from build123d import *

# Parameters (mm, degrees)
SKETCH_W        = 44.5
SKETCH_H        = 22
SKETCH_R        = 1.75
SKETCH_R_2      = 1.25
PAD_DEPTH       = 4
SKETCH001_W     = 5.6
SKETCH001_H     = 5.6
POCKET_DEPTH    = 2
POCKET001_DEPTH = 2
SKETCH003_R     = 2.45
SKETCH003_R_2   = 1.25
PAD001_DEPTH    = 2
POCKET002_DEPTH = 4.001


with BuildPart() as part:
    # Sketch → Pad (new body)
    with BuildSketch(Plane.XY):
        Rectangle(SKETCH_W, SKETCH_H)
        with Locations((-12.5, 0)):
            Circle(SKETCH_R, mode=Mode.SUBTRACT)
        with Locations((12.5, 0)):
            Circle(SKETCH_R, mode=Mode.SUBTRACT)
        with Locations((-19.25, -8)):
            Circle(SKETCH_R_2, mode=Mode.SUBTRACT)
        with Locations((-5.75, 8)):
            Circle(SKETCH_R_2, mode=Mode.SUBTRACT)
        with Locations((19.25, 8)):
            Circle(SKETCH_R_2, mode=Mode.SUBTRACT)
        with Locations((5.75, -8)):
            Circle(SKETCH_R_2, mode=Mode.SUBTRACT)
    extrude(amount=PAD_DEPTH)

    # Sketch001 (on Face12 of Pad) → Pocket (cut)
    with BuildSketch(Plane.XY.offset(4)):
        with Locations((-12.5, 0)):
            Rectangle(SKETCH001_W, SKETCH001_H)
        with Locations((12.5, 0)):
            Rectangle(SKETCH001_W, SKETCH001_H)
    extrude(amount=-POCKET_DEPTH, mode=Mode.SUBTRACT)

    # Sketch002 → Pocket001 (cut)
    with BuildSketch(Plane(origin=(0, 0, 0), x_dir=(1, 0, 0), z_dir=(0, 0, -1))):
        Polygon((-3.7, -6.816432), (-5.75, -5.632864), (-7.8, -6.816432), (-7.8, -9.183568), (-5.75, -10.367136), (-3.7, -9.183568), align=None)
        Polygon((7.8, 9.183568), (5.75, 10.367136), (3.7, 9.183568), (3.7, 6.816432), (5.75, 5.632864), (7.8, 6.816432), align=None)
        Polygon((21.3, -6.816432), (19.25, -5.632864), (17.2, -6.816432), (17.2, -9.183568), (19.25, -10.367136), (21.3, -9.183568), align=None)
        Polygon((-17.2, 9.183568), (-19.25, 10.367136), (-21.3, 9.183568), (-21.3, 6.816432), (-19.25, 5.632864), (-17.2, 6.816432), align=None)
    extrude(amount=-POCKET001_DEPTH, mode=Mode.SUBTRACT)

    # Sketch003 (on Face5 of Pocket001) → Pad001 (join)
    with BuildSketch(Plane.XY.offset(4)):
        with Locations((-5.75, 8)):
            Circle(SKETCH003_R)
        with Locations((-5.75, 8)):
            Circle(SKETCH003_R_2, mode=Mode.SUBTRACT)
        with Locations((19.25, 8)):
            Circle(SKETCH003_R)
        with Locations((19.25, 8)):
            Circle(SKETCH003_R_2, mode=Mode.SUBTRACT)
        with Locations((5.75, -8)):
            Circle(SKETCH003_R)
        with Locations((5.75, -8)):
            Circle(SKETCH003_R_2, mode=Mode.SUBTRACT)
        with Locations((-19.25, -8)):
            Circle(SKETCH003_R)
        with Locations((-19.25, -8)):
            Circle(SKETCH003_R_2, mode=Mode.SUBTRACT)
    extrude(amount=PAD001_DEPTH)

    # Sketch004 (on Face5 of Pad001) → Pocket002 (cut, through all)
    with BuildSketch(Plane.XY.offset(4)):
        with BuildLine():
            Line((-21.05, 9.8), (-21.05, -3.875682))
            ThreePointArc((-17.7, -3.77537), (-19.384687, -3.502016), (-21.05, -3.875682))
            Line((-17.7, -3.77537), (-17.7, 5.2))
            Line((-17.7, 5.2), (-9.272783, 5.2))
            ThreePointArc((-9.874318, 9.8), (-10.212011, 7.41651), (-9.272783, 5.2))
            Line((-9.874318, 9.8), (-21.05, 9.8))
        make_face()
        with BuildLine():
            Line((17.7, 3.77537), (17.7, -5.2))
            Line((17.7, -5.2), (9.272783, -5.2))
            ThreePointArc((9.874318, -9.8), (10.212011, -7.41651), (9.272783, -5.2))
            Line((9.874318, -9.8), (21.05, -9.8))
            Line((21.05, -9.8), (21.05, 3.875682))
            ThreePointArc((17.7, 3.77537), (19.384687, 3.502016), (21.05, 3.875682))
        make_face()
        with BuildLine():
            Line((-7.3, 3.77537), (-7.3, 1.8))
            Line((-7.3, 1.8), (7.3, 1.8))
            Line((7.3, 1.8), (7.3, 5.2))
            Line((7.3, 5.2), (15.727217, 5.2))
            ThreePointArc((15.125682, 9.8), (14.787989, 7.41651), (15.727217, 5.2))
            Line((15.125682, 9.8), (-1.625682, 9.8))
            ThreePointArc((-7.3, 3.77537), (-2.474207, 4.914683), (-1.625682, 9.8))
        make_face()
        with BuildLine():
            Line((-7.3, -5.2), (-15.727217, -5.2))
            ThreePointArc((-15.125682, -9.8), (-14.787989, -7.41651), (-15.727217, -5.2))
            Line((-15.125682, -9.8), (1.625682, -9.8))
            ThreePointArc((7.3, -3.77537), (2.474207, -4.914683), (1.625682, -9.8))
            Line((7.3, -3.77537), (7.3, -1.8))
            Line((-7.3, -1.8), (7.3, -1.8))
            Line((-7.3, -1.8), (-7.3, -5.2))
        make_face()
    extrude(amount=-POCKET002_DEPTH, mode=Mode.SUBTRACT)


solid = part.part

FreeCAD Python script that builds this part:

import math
import FreeCAD as App
import Part
import Sketcher

V = App.Vector
Q = App.Units.Quantity

doc = App.newDocument("Part")
body = doc.addObject("PartDesign::Body", "Body")

sketch1 = body.newObject("Sketcher::SketchObject", "Sketch")
sketch1.AttachmentSupport = (doc.getObject("XY_Plane"), [""])
sketch1.MapMode = "FlatFace"
sketch1.addGeometry(Part.LineSegment(V(-22.25, 11, 0), V(-22.25, -11, 0)), False)
sketch1.addGeometry(Part.LineSegment(V(-22.25, -11, 0), V(22.25, -11, 0)), False)
sketch1.addGeometry(Part.LineSegment(V(22.25, -11, 0), V(22.25, 11, 0)), False)
sketch1.addGeometry(Part.LineSegment(V(22.25, 11, 0), V(-22.25, 11, 0)), False)
sketch1.addGeometry(Part.Circle(V(-19.25, -8, 0), V(0, 0, 1), 1.25), False)
sketch1.addGeometry(Part.Circle(V(5.75, -8, 0), V(0, 0, 1), 1.25), False)
sketch1.addGeometry(Part.Circle(V(-12.5, 0, 0), V(0, 0, 1), 1.75), False)
sketch1.addGeometry(Part.Circle(V(-5.75, 8, 0), V(0, 0, 1), 1.25), False)
sketch1.addGeometry(Part.Circle(V(12.5, 0, 0), V(0, 0, 1), 1.75), False)
sketch1.addGeometry(Part.Circle(V(19.25, 8, 0), V(0, 0, 1), 1.25), False)
sketch1.addConstraint(Sketcher.Constraint("Coincident", 0, 2, 1, 1))
sketch1.addConstraint(Sketcher.Constraint("Coincident", 1, 2, 2, 1))
sketch1.addConstraint(Sketcher.Constraint("Coincident", 2, 2, 3, 1))
sketch1.addConstraint(Sketcher.Constraint("Coincident", 3, 2, 0, 1))
sketch1.addConstraint(Sketcher.Constraint("Vertical", 0))
sketch1.addConstraint(Sketcher.Constraint("Horizontal", 1))
sketch1.addConstraint(Sketcher.Constraint("Vertical", 2))
sketch1.addConstraint(Sketcher.Constraint("Horizontal", 3))
sketch1.addConstraint(Sketcher.Constraint("Equal", 4, 5))
sketch1.addConstraint(Sketcher.Constraint("Equal", 5, 7))
sketch1.addConstraint(Sketcher.Constraint("Equal", 6, 8))
sketch1.addConstraint(Sketcher.Constraint("Equal", 7, 9))
sketch1.addConstraint(Sketcher.Constraint("Symmetric", 5, 3, 7, 3, -1, 1))
sketch1.addConstraint(Sketcher.Constraint("Symmetric", 6, 3, 8, 3, -1, 1))
sketch1.addConstraint(Sketcher.Constraint("Symmetric", 4, 3, 9, 3, -1, 1))
sketch1.addConstraint(Sketcher.Constraint("Symmetric", 0, 2, 2, 2, -1, 1))
sketch1.addConstraint(Sketcher.Constraint("PointOnObject", 6, 3, -1))
sketch1.addConstraint(Sketcher.Constraint("Horizontal", 4, 3, 5, 3))
sketch1.addConstraint(Sketcher.Constraint("Diameter", 4, 2.5))
sketch1.addConstraint(Sketcher.Constraint("Diameter", 6, 3.5))
sketch1.addConstraint(Sketcher.Constraint("DistanceY", 0, 2, 0, 1, 22.0))
sketch1.addConstraint(Sketcher.Constraint("DistanceX", 1, 1, 1, 2, 44.5))
sketch1.addConstraint(Sketcher.Constraint("DistanceY", 4, 3, -1, 1, 8.0))
sketch1.addConstraint(Sketcher.Constraint("DistanceX", 4, 3, 5, 3, 25.0))
sketch1.addConstraint(Sketcher.Constraint("DistanceX", 6, 3, 8, 3, 25.0))
sketch1.addConstraint(Sketcher.Constraint("DistanceX", 0, 2, 4, 3, 3.0))
pad1 = body.newObject("PartDesign::Pad", "Pad")
pad1.Profile = sketch1
pad1.Length = 4

sketch2 = body.newObject("Sketcher::SketchObject", "Sketch001")
sketch2.AttachmentSupport = (doc.getObject("XY_Plane"), [""])
sketch2.MapMode = "FlatFace"
sketch2.AttachmentOffset = App.Placement(V(0, 0, 4), App.Rotation())
sketch2.addGeometry(Part.LineSegment(V(-15.3, 2.8, 0), V(-15.3, -2.8, 0)), False)
sketch2.addGeometry(Part.LineSegment(V(-15.3, -2.8, 0), V(-9.7, -2.8, 0)), False)
sketch2.addGeometry(Part.LineSegment(V(-9.7, -2.8, 0), V(-9.7, 2.8, 0)), False)
sketch2.addGeometry(Part.LineSegment(V(-9.7, 2.8, 0), V(-15.3, 2.8, 0)), False)
sketch2.addGeometry(Part.LineSegment(V(9.7, 2.8, 0), V(9.7, -2.8, 0)), False)
sketch2.addGeometry(Part.LineSegment(V(9.7, -2.8, 0), V(15.3, -2.8, 0)), False)
sketch2.addGeometry(Part.LineSegment(V(15.3, -2.8, 0), V(15.3, 2.8, 0)), False)
sketch2.addGeometry(Part.LineSegment(V(15.3, 2.8, 0), V(9.7, 2.8, 0)), False)
sketch2.addConstraint(Sketcher.Constraint("Coincident", 0, 2, 1, 1))
sketch2.addConstraint(Sketcher.Constraint("Coincident", 1, 2, 2, 1))
sketch2.addConstraint(Sketcher.Constraint("Coincident", 2, 2, 3, 1))
sketch2.addConstraint(Sketcher.Constraint("Coincident", 3, 2, 0, 1))
sketch2.addConstraint(Sketcher.Constraint("Coincident", 4, 2, 5, 1))
sketch2.addConstraint(Sketcher.Constraint("Coincident", 5, 2, 6, 1))
sketch2.addConstraint(Sketcher.Constraint("Coincident", 6, 2, 7, 1))
sketch2.addConstraint(Sketcher.Constraint("Coincident", 7, 2, 4, 1))
sketch2.addConstraint(Sketcher.Constraint("Vertical", 0))
sketch2.addConstraint(Sketcher.Constraint("Horizontal", 1))
sketch2.addConstraint(Sketcher.Constraint("Vertical", 2))
sketch2.addConstraint(Sketcher.Constraint("Horizontal", 3))
sketch2.addConstraint(Sketcher.Constraint("Vertical", 4))
sketch2.addConstraint(Sketcher.Constraint("Horizontal", 5))
sketch2.addConstraint(Sketcher.Constraint("Vertical", 6))
sketch2.addConstraint(Sketcher.Constraint("Horizontal", 7))
sketch2.addConstraint(Sketcher.Constraint("Symmetric", 2, 2, 4, 2, -1, 1))
sketch2.addConstraint(Sketcher.Constraint("Symmetric", 0, 2, 6, 2, -1, 1))
sketch2.addConstraint(Sketcher.Constraint("Horizontal", 1, 2, 4, 2))
sketch2.addConstraint(Sketcher.Constraint("Equal", 7, 0))
sketch2.addConstraint(Sketcher.Constraint("DistanceX", 1, 1, 1, 2, 5.6))
sketch2.addConstraint(Sketcher.Constraint("DistanceX", 0, 2, 4, 2, 25.0))
pocket1 = body.newObject("PartDesign::Pocket", "Pocket")
pocket1.Profile = sketch2
pocket1.Length = 2

sketch3 = body.newObject("Sketcher::SketchObject", "Sketch002")
sketch3.AttachmentSupport = (doc.getObject("XY_Plane"), [""])
sketch3.MapMode = "FlatFace"
sketch3.addGeometry(Part.LineSegment(V(-3.7, 6.816432, 0), V(-5.75, 5.632864, 0)), False)
sketch3.addGeometry(Part.LineSegment(V(-5.75, 5.632864, 0), V(-7.8, 6.816432, 0)), False)
sketch3.addGeometry(Part.LineSegment(V(-7.8, 6.816432, 0), V(-7.8, 9.183568, 0)), False)
sketch3.addGeometry(Part.LineSegment(V(-7.8, 9.183568, 0), V(-5.75, 10.367136, 0)), False)
sketch3.addGeometry(Part.LineSegment(V(-5.75, 10.367136, 0), V(-3.7, 9.183568, 0)), False)
sketch3.addGeometry(Part.LineSegment(V(-3.7, 9.183568, 0), V(-3.7, 6.816432, 0)), False)
sketch3.addGeometry(Part.LineSegment(V(7.8, -9.183568, 0), V(5.75, -10.367136, 0)), False)
sketch3.addGeometry(Part.LineSegment(V(5.75, -10.367136, 0), V(3.7, -9.183568, 0)), False)
sketch3.addGeometry(Part.LineSegment(V(3.7, -9.183568, 0), V(3.7, -6.816432, 0)), False)
sketch3.addGeometry(Part.LineSegment(V(3.7, -6.816432, 0), V(5.75, -5.632864, 0)), False)
sketch3.addGeometry(Part.LineSegment(V(5.75, -5.632864, 0), V(7.8, -6.816432, 0)), False)
sketch3.addGeometry(Part.LineSegment(V(7.8, -6.816432, 0), V(7.8, -9.183568, 0)), False)
sketch3.addGeometry(Part.LineSegment(V(21.3, 6.816432, 0), V(19.25, 5.632864, 0)), False)
sketch3.addGeometry(Part.LineSegment(V(19.25, 5.632864, 0), V(17.2, 6.816432, 0)), False)
sketch3.addGeometry(Part.LineSegment(V(17.2, 6.816432, 0), V(17.2, 9.183568, 0)), False)
sketch3.addGeometry(Part.LineSegment(V(17.2, 9.183568, 0), V(19.25, 10.367136, 0)), False)
sketch3.addGeometry(Part.LineSegment(V(19.25, 10.367136, 0), V(21.3, 9.183568, 0)), False)
sketch3.addGeometry(Part.LineSegment(V(21.3, 9.183568, 0), V(21.3, 6.816432, 0)), False)
sketch3.addGeometry(Part.LineSegment(V(-17.2, -9.183568, 0), V(-19.25, -10.367136, 0)), False)
sketch3.addGeometry(Part.LineSegment(V(-19.25, -10.367136, 0), V(-21.3, -9.183568, 0)), False)
sketch3.addGeometry(Part.LineSegment(V(-21.3, -9.183568, 0), V(-21.3, -6.816432, 0)), False)
sketch3.addGeometry(Part.LineSegment(V(-21.3, -6.816432, 0), V(-19.25, -5.632864, 0)), False)
sketch3.addGeometry(Part.LineSegment(V(-19.25, -5.632864, 0), V(-17.2, -6.816432, 0)), False)
sketch3.addGeometry(Part.LineSegment(V(-17.2, -6.816432, 0), V(-17.2, -9.183568, 0)), False)
sketch3.addConstraint(Sketcher.Constraint("Coincident", 0, 2, 1, 1))
sketch3.addConstraint(Sketcher.Constraint("Coincident", 1, 2, 2, 1))
sketch3.addConstraint(Sketcher.Constraint("Coincident", 2, 2, 3, 1))
sketch3.addConstraint(Sketcher.Constraint("Coincident", 3, 2, 4, 1))
sketch3.addConstraint(Sketcher.Constraint("Coincident", 4, 2, 5, 1))
sketch3.addConstraint(Sketcher.Constraint("Coincident", 5, 2, 0, 1))
sketch3.addConstraint(Sketcher.Constraint("Coincident", 6, 2, 7, 1))
sketch3.addConstraint(Sketcher.Constraint("Coincident", 7, 2, 8, 1))
sketch3.addConstraint(Sketcher.Constraint("Coincident", 8, 2, 9, 1))
sketch3.addConstraint(Sketcher.Constraint("Coincident", 9, 2, 10, 1))
sketch3.addConstraint(Sketcher.Constraint("Coincident", 10, 2, 11, 1))
sketch3.addConstraint(Sketcher.Constraint("Coincident", 11, 2, 6, 1))
sketch3.addConstraint(Sketcher.Constraint("Coincident", 12, 2, 13, 1))
sketch3.addConstraint(Sketcher.Constraint("Coincident", 13, 2, 14, 1))
sketch3.addConstraint(Sketcher.Constraint("Coincident", 14, 2, 15, 1))
sketch3.addConstraint(Sketcher.Constraint("Coincident", 15, 2, 16, 1))
sketch3.addConstraint(Sketcher.Constraint("Coincident", 16, 2, 17, 1))
sketch3.addConstraint(Sketcher.Constraint("Coincident", 17, 2, 12, 1))
sketch3.addConstraint(Sketcher.Constraint("Coincident", 18, 2, 19, 1))
sketch3.addConstraint(Sketcher.Constraint("Coincident", 19, 2, 20, 1))
sketch3.addConstraint(Sketcher.Constraint("Coincident", 20, 2, 21, 1))
sketch3.addConstraint(Sketcher.Constraint("Coincident", 21, 2, 22, 1))
sketch3.addConstraint(Sketcher.Constraint("Coincident", 22, 2, 23, 1))
sketch3.addConstraint(Sketcher.Constraint("Coincident", 23, 2, 18, 1))
sketch3.addConstraint(Sketcher.Constraint("Vertical", 2))
sketch3.addConstraint(Sketcher.Constraint("Vertical", 5))
sketch3.addConstraint(Sketcher.Constraint("Vertical", 8))
sketch3.addConstraint(Sketcher.Constraint("Vertical", 11))
sketch3.addConstraint(Sketcher.Constraint("Vertical", 14))
sketch3.addConstraint(Sketcher.Constraint("Vertical", 17))
sketch3.addConstraint(Sketcher.Constraint("Vertical", 20))
sketch3.addConstraint(Sketcher.Constraint("Vertical", 23))
sketch3.addConstraint(Sketcher.Constraint("Symmetric", 3, 2, 6, 2, -1, 1))
sketch3.addConstraint(Sketcher.Constraint("Symmetric", 4, 2, 7, 2, -1, 1))
sketch3.addConstraint(Sketcher.Constraint("Symmetric", 0, 2, 9, 2, -1, 1))
sketch3.addConstraint(Sketcher.Constraint("Symmetric", 1, 2, 10, 2, -1, 1))
sketch3.addConstraint(Sketcher.Constraint("Symmetric", 15, 2, 18, 2, -1, 1))
sketch3.addConstraint(Sketcher.Constraint("Symmetric", 16, 2, 19, 2, -1, 1))
sketch3.addConstraint(Sketcher.Constraint("Symmetric", 12, 2, 21, 2, -1, 1))
sketch3.addConstraint(Sketcher.Constraint("Symmetric", 13, 2, 22, 2, -1, 1))
sketch3.addConstraint(Sketcher.Constraint("Parallel", 0, 3))
sketch3.addConstraint(Sketcher.Constraint("Parallel", 1, 4))
sketch3.addConstraint(Sketcher.Constraint("Parallel", 3, 6))
sketch3.addConstraint(Sketcher.Constraint("Parallel", 6, 9))
sketch3.addConstraint(Sketcher.Constraint("Parallel", 9, 12))
sketch3.addConstraint(Sketcher.Constraint("Parallel", 10, 13))
sketch3.addConstraint(Sketcher.Constraint("Parallel", 12, 15))
sketch3.addConstraint(Sketcher.Constraint("Parallel", 13, 16))
sketch3.addConstraint(Sketcher.Constraint("Parallel", 15, 18))
sketch3.addConstraint(Sketcher.Constraint("Parallel", 18, 21))
sketch3.addConstraint(Sketcher.Constraint("Horizontal", 2, 2, 4, 2))
sketch3.addConstraint(Sketcher.Constraint("Horizontal", 1, 2, 5, 2))
sketch3.addConstraint(Sketcher.Constraint("Horizontal", 0, 2, 12, 2))
sketch3.addConstraint(Sketcher.Constraint("Horizontal", 5, 2, 13, 2))
sketch3.addConstraint(Sketcher.Constraint("Horizontal", 4, 2, 14, 2))
sketch3.addConstraint(Sketcher.Constraint("Horizontal", 3, 2, 15, 2))
sketch3.addConstraint(Sketcher.Constraint("Horizontal", 14, 2, 16, 2))
sketch3.addConstraint(Sketcher.Constraint("Vertical", 0, 2, 3, 2))
sketch3.addConstraint(Sketcher.Constraint("Angle", 0, Q("-150.000001 deg")))
sketch3.addConstraint(Sketcher.Constraint("DistanceY", 6, 2, 0, 2, 16.0))
sketch3.addConstraint(Sketcher.Constraint("DistanceX", 1, 2, -1, 1, 7.8))
sketch3.addConstraint(Sketcher.Constraint("DistanceX", 4, 2, -1, 1, 3.7))
sketch3.addConstraint(Sketcher.Constraint("DistanceX", -1, 1, 13, 2, 17.2))
sketch3.addConstraint(Sketcher.Constraint("DistanceY", 2, 1, 2, 2, 2.367136))
pocket2 = body.newObject("PartDesign::Pocket", "Pocket001")
pocket2.Profile = sketch3
pocket2.Length = 2
pocket2.Reversed = True

sketch4 = body.newObject("Sketcher::SketchObject", "Sketch003")
sketch4.AttachmentSupport = (doc.getObject("XY_Plane"), [""])
sketch4.MapMode = "FlatFace"
sketch4.AttachmentOffset = App.Placement(V(0, 0, 4), App.Rotation())
sketch4.addGeometry(Part.Circle(V(-5.75, 8, 0), V(0, 0, 1), 2.45), False)
sketch4.addGeometry(Part.Circle(V(-5.75, 8, 0), V(0, 0, 1), 1.25), False)
sketch4.addGeometry(Part.Circle(V(19.25, 8, 0), V(0, 0, 1), 2.45), False)
sketch4.addGeometry(Part.Circle(V(19.25, 8, 0), V(0, 0, 1), 1.25), False)
sketch4.addGeometry(Part.Circle(V(5.75, -8, 0), V(0, 0, 1), 2.45), False)
sketch4.addGeometry(Part.Circle(V(5.75, -8, 0), V(0, 0, 1), 1.25), False)
sketch4.addGeometry(Part.Circle(V(-19.25, -8, 0), V(0, 0, 1), 2.45), False)
sketch4.addGeometry(Part.Circle(V(-19.25, -8, 0), V(0, 0, 1), 1.25), False)
sketch4.addConstraint(Sketcher.Constraint("Coincident", 1, 3, 0, 3))
sketch4.addConstraint(Sketcher.Constraint("Coincident", 3, 3, 2, 3))
sketch4.addConstraint(Sketcher.Constraint("Coincident", 5, 3, 4, 3))
sketch4.addConstraint(Sketcher.Constraint("Coincident", 7, 3, 6, 3))
sketch4.addConstraint(Sketcher.Constraint("Equal", 0, 2))
sketch4.addConstraint(Sketcher.Constraint("Equal", 1, 3))
sketch4.addConstraint(Sketcher.Constraint("Equal", 2, 4))
sketch4.addConstraint(Sketcher.Constraint("Equal", 3, 5))
sketch4.addConstraint(Sketcher.Constraint("Equal", 4, 6))
sketch4.addConstraint(Sketcher.Constraint("Equal", 5, 7))
sketch4.addConstraint(Sketcher.Constraint("Symmetric", 0, 3, 4, 3, -1, 1))
sketch4.addConstraint(Sketcher.Constraint("Symmetric", 2, 3, 6, 3, -1, 1))
sketch4.addConstraint(Sketcher.Constraint("Horizontal", 1, 3, 2, 3))
sketch4.addConstraint(Sketcher.Constraint("Diameter", 0, 4.9))
sketch4.addConstraint(Sketcher.Constraint("Diameter", 1, 2.5))
sketch4.addConstraint(Sketcher.Constraint("DistanceY", -1, 1, 0, 3, 8.0))
sketch4.addConstraint(Sketcher.Constraint("DistanceX", 0, 3, 2, 3, 25.0))
sketch4.addConstraint(Sketcher.Constraint("DistanceX", 0, 3, 4, 3, 11.5))
pad2 = body.newObject("PartDesign::Pad", "Pad001")
pad2.Profile = sketch4
pad2.Length = 2

sketch5 = body.newObject("Sketcher::SketchObject", "Sketch004")
sketch5.AttachmentSupport = (doc.getObject("XY_Plane"), [""])
sketch5.MapMode = "FlatFace"
sketch5.AttachmentOffset = App.Placement(V(0, 0, 4), App.Rotation())
sketch5.addGeometry(Part.LineSegment(V(-21.05, 9.8, 0), V(-21.05, -3.875682, 0)), False)
sketch5.addGeometry(Part.ArcOfCircle(Part.Circle(V(-19.25, -7.999997, 0), V(0, 0, 1), 4.499997), math.radians(69.852099), math.radians(113.578192)), False)
sketch5.addGeometry(Part.LineSegment(V(-17.7, -3.77537, 0), V(-17.7, 5.2, 0)), False)
sketch5.addGeometry(Part.LineSegment(V(-17.7, 5.2, 0), V(-9.272783, 5.2, 0)), False)
sketch5.addGeometry(Part.ArcOfCircle(Part.Circle(V(-5.750002, 8, 0), V(0, 0, 1), 4.499998), math.radians(156.421803), math.radians(218.47861)), False)
sketch5.addGeometry(Part.LineSegment(V(-9.874318, 9.8, 0), V(-21.05, 9.8, 0)), False)
sketch5.addGeometry(Part.LineSegment(V(17.7, 3.77537, 0), V(17.7, -5.2, 0)), False)
sketch5.addGeometry(Part.LineSegment(V(17.7, -5.2, 0), V(9.272783, -5.2, 0)), False)
sketch5.addGeometry(Part.ArcOfCircle(Part.Circle(V(5.750002, -8, 0), V(0, 0, 1), 4.499998), math.radians(-23.578197), math.radians(38.47861)), False)
sketch5.addGeometry(Part.LineSegment(V(9.874318, -9.8, 0), V(21.05, -9.8, 0)), False)
sketch5.addGeometry(Part.LineSegment(V(21.05, -9.8, 0), V(21.05, 3.875682, 0)), False)
sketch5.addGeometry(Part.ArcOfCircle(Part.Circle(V(19.25, 7.999997, 0), V(0, 0, 1), 4.499997), math.radians(-110.147901), math.radians(-66.421808)), False)
sketch5.addGeometry(Part.LineSegment(V(-7.3, 3.77537, 0), V(-7.3, 1.8, 0)), False)
sketch5.addGeometry(Part.LineSegment(V(-7.3, 1.8, 0), V(7.3, 1.8, 0)), False)
sketch5.addGeometry(Part.LineSegment(V(7.3, 1.8, 0), V(7.3, 5.2, 0)), False)
sketch5.addGeometry(Part.LineSegment(V(7.3, 5.2, 0), V(15.727217, 5.2, 0)), False)
sketch5.addGeometry(Part.ArcOfCircle(Part.Circle(V(19.249998, 8, 0), V(0, 0, 1), 4.499998), math.radians(156.421803), math.radians(218.47861)), False)
sketch5.addGeometry(Part.LineSegment(V(15.125682, 9.8, 0), V(-1.625682, 9.8, 0)), False)
sketch5.addGeometry(Part.ArcOfCircle(Part.Circle(V(-5.75, 8, 0), V(0, 0, 1), 4.5), math.radians(-110.147891), math.radians(23.578183)), False)
sketch5.addGeometry(Part.LineSegment(V(-7.3, -5.2, 0), V(-15.727217, -5.2, 0)), False)
sketch5.addGeometry(Part.ArcOfCircle(Part.Circle(V(-19.249998, -8, 0), V(0, 0, 1), 4.499998), math.radians(-23.578197), math.radians(38.47861)), False)
sketch5.addGeometry(Part.LineSegment(V(-15.125682, -9.8, 0), V(1.625682, -9.8, 0)), False)
sketch5.addGeometry(Part.ArcOfCircle(Part.Circle(V(5.75, -8, 0), V(0, 0, 1), 4.5), math.radians(69.852109), math.radians(203.578183)), False)
sketch5.addGeometry(Part.LineSegment(V(7.3, -3.77537, 0), V(7.3, -1.8, 0)), False)
sketch5.addGeometry(Part.LineSegment(V(7.3, -1.8, 0), V(-7.3, -1.8, 0)), False)
sketch5.addGeometry(Part.LineSegment(V(-7.3, -1.8, 0), V(-7.3, -5.2, 0)), False)
sketch5.addConstraint(Sketcher.Constraint("Coincident", 0, 2, 1, 2))
sketch5.addConstraint(Sketcher.Constraint("Coincident", 1, 1, 2, 1))
sketch5.addConstraint(Sketcher.Constraint("Coincident", 2, 2, 3, 1))
sketch5.addConstraint(Sketcher.Constraint("Coincident", 3, 2, 4, 2))
sketch5.addConstraint(Sketcher.Constraint("Coincident", 4, 1, 5, 1))
sketch5.addConstraint(Sketcher.Constraint("Coincident", 5, 2, 0, 1))
sketch5.addConstraint(Sketcher.Constraint("Coincident", 6, 2, 7, 1))
sketch5.addConstraint(Sketcher.Constraint("Coincident", 7, 2, 8, 2))
sketch5.addConstraint(Sketcher.Constraint("Coincident", 8, 1, 9, 1))
sketch5.addConstraint(Sketcher.Constraint("Coincident", 9, 2, 10, 1))
sketch5.addConstraint(Sketcher.Constraint("Coincident", 10, 2, 11, 2))
sketch5.addConstraint(Sketcher.Constraint("Coincident", 11, 1, 6, 1))
sketch5.addConstraint(Sketcher.Constraint("Coincident", 12, 2, 13, 1))
sketch5.addConstraint(Sketcher.Constraint("Coincident", 13, 2, 14, 1))
sketch5.addConstraint(Sketcher.Constraint("Coincident", 14, 2, 15, 1))
sketch5.addConstraint(Sketcher.Constraint("Coincident", 15, 2, 16, 2))
sketch5.addConstraint(Sketcher.Constraint("Coincident", 16, 1, 17, 1))
sketch5.addConstraint(Sketcher.Constraint("Coincident", 17, 2, 18, 2))
sketch5.addConstraint(Sketcher.Constraint("Coincident", 18, 1, 12, 1))
sketch5.addConstraint(Sketcher.Constraint("Coincident", 19, 2, 20, 2))
sketch5.addConstraint(Sketcher.Constraint("Coincident", 20, 1, 21, 1))
sketch5.addConstraint(Sketcher.Constraint("Coincident", 21, 2, 22, 2))
sketch5.addConstraint(Sketcher.Constraint("Coincident", 22, 1, 23, 1))
sketch5.addConstraint(Sketcher.Constraint("Coincident", 23, 2, 24, 1))
sketch5.addConstraint(Sketcher.Constraint("Coincident", 24, 2, 25, 1))
sketch5.addConstraint(Sketcher.Constraint("Coincident", 25, 2, 19, 1))
sketch5.addConstraint(Sketcher.Constraint("Vertical", 0))
sketch5.addConstraint(Sketcher.Constraint("Vertical", 2))
sketch5.addConstraint(Sketcher.Constraint("Horizontal", 3))
sketch5.addConstraint(Sketcher.Constraint("Horizontal", 5))
sketch5.addConstraint(Sketcher.Constraint("Vertical", 6))
sketch5.addConstraint(Sketcher.Constraint("Horizontal", 7))
sketch5.addConstraint(Sketcher.Constraint("Horizontal", 9))
sketch5.addConstraint(Sketcher.Constraint("Vertical", 10))
sketch5.addConstraint(Sketcher.Constraint("Vertical", 12))
sketch5.addConstraint(Sketcher.Constraint("Horizontal", 13))
sketch5.addConstraint(Sketcher.Constraint("Vertical", 14))
sketch5.addConstraint(Sketcher.Constraint("Horizontal", 15))
sketch5.addConstraint(Sketcher.Constraint("Horizontal", 17))
sketch5.addConstraint(Sketcher.Constraint("Horizontal", 19))
sketch5.addConstraint(Sketcher.Constraint("Horizontal", 21))
sketch5.addConstraint(Sketcher.Constraint("Vertical", 23))
sketch5.addConstraint(Sketcher.Constraint("Horizontal", 24))
sketch5.addConstraint(Sketcher.Constraint("Vertical", 25))
sketch5.addConstraint(Sketcher.Constraint("Coincident", 16, 3, 11, 3))
sketch5.addConstraint(Sketcher.Constraint("Coincident", 18, 3, 4, 3))
sketch5.addConstraint(Sketcher.Constraint("Coincident", 20, 3, 1, 3))
sketch5.addConstraint(Sketcher.Constraint("Coincident", 22, 3, 8, 3))
sketch5.addConstraint(Sketcher.Constraint("Equal", 1, 4))
sketch5.addConstraint(Sketcher.Constraint("Equal", 4, 8))
sketch5.addConstraint(Sketcher.Constraint("Equal", 8, 11))
sketch5.addConstraint(Sketcher.Constraint("Equal", 11, 16))
sketch5.addConstraint(Sketcher.Constraint("Equal", 16, 18))
sketch5.addConstraint(Sketcher.Constraint("Equal", 18, 20))
sketch5.addConstraint(Sketcher.Constraint("Equal", 20, 22))
sketch5.addConstraint(Sketcher.Constraint("Symmetric", 4, 3, 8, 3, -1, 1))
sketch5.addConstraint(Sketcher.Constraint("Symmetric", 1, 3, 11, 3, -1, 1))
sketch5.addConstraint(Sketcher.Constraint("Symmetric", 2, 2, 6, 2, -1, 1))
sketch5.addConstraint(Sketcher.Constraint("Symmetric", 5, 2, 9, 2, -1, 1))
sketch5.addConstraint(Sketcher.Constraint("Symmetric", 12, 2, 23, 2, -1, 1))
sketch5.addConstraint(Sketcher.Constraint("Symmetric", 14, 2, 25, 2, -1, 1))
sketch5.addConstraint(Sketcher.Constraint("Horizontal", 4, 3, 16, 3))
sketch5.addConstraint(Sketcher.Constraint("Horizontal", 3, 2, 14, 2))
sketch5.addConstraint(Sketcher.Constraint("Horizontal", 5, 2, 16, 1))
sketch5.addConstraint(Sketcher.Constraint("Horizontal", 11, 1, 18, 1))
sketch5.addConstraint(Sketcher.Constraint("Horizontal", 9, 2, 20, 1))
sketch5.addConstraint(Sketcher.Constraint("Vertical", 14, 2, 22, 1))
sketch5.addConstraint(Sketcher.Constraint("Radius", 18, 4.5))
sketch5.addConstraint(Sketcher.Constraint("DistanceX", 13, 1, 13, 2, 14.6))
sketch5.addConstraint(Sketcher.Constraint("DistanceY", 14, 1, 14, 2, 3.4))
sketch5.addConstraint(Sketcher.Constraint("DistanceY", -1, 1, 4, 3, 8.0))
sketch5.addConstraint(Sketcher.Constraint("DistanceX", 4, 3, 16, 3, 25.0))
sketch5.addConstraint(Sketcher.Constraint("DistanceY", 12, 2, 4, 1, 8.0))
sketch5.addConstraint(Sketcher.Constraint("DistanceY", 7, 2, 13, 2, 7.0))
sketch5.addConstraint(Sketcher.Constraint("DistanceX", 1, 3, 11, 3, 38.5))
sketch5.addConstraint(Sketcher.Constraint("DistanceX", 0, 2, 1, 3, 1.8))
pocket3 = body.newObject("PartDesign::Pocket", "Pocket002")
pocket3.Profile = sketch5
pocket3.Type = "ThroughAll"

doc.recompute()
